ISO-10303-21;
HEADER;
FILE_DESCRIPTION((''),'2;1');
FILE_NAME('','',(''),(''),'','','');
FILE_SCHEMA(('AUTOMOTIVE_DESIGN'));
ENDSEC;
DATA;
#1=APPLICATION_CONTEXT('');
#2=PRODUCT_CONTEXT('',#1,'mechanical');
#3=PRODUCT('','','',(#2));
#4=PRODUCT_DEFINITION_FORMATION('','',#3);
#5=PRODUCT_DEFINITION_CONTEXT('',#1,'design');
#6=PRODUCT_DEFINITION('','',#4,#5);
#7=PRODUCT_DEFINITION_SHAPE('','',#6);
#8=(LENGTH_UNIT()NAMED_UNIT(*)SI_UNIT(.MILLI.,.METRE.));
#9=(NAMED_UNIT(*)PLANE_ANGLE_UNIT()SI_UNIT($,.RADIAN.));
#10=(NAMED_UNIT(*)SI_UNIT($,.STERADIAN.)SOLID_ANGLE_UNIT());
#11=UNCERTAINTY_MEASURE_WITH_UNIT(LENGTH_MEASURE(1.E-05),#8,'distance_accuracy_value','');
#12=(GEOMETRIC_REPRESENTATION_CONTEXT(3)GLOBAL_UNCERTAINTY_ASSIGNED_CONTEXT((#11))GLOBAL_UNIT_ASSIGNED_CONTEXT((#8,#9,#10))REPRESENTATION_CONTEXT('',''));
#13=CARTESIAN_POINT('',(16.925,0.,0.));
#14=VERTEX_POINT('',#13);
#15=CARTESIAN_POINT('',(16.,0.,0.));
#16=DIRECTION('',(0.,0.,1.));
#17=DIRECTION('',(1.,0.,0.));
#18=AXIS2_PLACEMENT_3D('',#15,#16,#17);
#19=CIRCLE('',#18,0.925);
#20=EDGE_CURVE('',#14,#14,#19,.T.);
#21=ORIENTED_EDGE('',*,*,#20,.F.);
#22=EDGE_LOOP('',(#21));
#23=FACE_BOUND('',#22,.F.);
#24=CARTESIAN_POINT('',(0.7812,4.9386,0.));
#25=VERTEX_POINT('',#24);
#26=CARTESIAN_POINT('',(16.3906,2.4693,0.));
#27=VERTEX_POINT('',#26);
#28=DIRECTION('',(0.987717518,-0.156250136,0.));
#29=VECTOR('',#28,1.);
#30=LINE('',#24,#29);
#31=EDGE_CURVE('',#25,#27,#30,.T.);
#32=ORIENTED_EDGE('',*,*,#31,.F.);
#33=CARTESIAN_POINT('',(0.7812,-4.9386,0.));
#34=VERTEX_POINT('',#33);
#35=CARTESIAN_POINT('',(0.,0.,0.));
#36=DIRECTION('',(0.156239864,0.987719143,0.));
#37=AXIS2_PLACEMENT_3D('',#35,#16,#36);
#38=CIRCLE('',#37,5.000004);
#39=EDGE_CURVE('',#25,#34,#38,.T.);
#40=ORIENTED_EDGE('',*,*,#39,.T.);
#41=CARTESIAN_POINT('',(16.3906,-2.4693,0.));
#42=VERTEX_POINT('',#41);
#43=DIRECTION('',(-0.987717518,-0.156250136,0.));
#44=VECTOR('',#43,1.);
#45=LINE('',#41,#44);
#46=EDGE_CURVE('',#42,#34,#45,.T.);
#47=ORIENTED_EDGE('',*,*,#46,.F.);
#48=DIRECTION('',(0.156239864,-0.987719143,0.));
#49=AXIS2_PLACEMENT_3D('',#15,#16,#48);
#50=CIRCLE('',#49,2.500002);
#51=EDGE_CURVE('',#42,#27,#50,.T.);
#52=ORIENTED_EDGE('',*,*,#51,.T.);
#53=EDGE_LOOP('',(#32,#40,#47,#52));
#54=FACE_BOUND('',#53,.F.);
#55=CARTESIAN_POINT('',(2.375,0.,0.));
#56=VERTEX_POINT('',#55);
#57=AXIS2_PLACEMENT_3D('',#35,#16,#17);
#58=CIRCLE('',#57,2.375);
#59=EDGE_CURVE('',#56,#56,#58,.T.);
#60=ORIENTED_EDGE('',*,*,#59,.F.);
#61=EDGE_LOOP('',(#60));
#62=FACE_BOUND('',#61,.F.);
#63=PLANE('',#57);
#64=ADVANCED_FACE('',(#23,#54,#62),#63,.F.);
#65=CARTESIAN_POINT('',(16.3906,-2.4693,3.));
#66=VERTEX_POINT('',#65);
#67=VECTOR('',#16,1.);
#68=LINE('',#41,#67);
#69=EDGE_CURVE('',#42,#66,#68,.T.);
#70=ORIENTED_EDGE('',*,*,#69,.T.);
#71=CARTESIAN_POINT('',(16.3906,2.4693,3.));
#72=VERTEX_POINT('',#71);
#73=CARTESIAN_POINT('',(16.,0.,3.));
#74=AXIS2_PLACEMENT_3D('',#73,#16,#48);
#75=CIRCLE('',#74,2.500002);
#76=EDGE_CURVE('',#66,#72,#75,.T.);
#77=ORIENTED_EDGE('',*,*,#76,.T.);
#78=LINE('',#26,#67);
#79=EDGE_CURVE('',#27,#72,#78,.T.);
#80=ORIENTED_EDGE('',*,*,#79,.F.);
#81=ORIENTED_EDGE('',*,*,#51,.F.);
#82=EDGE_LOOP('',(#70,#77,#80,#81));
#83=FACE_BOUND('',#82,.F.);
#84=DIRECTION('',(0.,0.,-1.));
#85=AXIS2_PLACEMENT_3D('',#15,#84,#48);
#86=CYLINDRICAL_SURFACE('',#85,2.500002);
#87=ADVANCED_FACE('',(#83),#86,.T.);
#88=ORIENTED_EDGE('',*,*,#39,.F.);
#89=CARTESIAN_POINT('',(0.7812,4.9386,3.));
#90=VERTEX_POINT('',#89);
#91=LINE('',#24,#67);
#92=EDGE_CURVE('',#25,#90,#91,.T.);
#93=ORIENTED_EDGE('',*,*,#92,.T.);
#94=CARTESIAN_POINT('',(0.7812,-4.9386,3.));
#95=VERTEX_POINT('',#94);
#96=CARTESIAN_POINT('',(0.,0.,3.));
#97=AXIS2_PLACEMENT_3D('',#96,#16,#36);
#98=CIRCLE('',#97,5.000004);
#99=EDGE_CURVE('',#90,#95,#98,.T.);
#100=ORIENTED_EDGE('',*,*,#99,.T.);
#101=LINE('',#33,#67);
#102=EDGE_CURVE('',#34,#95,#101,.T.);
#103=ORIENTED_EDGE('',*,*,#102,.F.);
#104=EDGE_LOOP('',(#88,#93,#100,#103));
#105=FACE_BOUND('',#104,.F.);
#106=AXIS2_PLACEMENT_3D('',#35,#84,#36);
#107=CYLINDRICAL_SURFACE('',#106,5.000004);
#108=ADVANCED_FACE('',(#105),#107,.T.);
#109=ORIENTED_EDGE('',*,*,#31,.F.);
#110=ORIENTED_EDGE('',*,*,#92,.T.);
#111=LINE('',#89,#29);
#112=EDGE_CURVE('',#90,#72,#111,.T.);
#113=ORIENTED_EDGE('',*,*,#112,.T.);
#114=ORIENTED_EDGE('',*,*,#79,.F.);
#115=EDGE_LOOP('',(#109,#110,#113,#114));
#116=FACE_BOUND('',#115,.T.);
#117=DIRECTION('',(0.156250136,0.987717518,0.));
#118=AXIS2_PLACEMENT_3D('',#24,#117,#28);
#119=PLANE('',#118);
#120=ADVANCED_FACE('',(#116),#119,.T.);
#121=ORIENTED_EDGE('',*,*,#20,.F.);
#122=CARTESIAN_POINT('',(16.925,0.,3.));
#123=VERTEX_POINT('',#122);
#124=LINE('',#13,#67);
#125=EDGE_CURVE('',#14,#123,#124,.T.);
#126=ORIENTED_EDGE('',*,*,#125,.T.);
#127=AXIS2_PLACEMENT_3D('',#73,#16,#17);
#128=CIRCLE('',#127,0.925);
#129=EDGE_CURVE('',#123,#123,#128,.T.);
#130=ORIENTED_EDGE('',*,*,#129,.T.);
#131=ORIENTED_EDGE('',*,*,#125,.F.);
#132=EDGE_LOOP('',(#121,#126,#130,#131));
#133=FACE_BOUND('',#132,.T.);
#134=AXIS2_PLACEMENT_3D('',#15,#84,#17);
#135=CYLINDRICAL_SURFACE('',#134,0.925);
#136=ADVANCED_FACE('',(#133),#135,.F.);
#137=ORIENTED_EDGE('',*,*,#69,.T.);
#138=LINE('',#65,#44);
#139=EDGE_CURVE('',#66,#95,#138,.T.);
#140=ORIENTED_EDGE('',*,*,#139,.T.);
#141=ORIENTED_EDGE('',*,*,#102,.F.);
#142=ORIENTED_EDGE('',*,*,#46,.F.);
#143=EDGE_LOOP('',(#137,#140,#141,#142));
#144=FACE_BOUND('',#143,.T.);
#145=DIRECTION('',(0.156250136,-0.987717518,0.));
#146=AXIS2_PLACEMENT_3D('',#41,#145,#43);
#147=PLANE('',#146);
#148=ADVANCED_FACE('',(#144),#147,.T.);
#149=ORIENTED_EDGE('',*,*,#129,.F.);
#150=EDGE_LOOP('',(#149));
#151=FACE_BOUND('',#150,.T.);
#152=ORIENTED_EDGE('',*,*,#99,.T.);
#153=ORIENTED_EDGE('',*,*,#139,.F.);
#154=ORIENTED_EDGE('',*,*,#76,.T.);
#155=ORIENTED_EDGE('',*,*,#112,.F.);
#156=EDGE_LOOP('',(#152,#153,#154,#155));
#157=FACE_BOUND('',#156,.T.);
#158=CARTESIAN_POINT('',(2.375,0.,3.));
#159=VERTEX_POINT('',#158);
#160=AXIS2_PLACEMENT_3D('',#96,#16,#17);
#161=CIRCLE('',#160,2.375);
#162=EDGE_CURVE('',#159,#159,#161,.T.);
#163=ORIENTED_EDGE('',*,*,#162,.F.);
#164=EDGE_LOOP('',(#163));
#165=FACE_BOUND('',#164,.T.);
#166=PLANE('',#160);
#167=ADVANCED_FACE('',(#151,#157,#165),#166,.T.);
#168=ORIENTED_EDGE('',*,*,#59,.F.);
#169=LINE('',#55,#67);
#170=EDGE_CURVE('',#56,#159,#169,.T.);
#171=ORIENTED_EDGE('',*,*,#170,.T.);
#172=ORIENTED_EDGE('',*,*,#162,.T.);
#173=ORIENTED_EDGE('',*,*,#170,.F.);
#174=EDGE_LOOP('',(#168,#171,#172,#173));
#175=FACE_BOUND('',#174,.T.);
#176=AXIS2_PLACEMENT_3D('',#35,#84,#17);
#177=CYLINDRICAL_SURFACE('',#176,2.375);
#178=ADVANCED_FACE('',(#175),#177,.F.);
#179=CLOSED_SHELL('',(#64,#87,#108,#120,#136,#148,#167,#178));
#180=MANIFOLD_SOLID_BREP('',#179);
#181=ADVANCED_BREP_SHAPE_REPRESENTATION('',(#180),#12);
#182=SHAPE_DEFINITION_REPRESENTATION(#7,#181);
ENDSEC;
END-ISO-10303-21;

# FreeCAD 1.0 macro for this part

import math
import FreeCAD as App
import Part
import Sketcher
Q = App.Units.Quantity

doc = App.newDocument("Part")
body = doc.addObject("PartDesign::Body", "Body")

# Sketch on XY plane
sketch1 = body.newObject("Sketcher::SketchObject", "Sketch")
sketch1.AttachmentSupport = (doc.getObject("XY_Plane"), [""])
sketch1.MapMode = "FlatFace"
sketch1.addGeometry(Part.LineSegment(App.Vector(16.4, 2.5, 0), App.Vector(0.8, 4.9, 0)), False)
sketch1.addGeometry(Part.ArcOfCircle(Part.Circle(App.Vector(0, 0, 0), App.Vector(0, 0, 1), 5), math.radians(81), math.radians(279)), False)
sketch1.addGeometry(Part.LineSegment(App.Vector(0.8, -4.9, 0), App.Vector(16.4, -2.5, 0)), False)
sketch1.addGeometry(Part.ArcOfCircle(Part.Circle(App.Vector(16, 0, 0), App.Vector(0, 0, 1), 2.5), math.radians(-81), math.radians(81)), False)
sketch1.addGeometry(Part.Circle(App.Vector(0, 0, 0), App.Vector(0, 0, 1), 2.4), False)
sketch1.addGeometry(Part.Circle(App.Vector(16, 0, 0), App.Vector(0, 0, 1), 0.9), False)
sketch1.addConstraint(Sketcher.Constraint("Tangent", 0, 2, 1, 1))
sketch1.addConstraint(Sketcher.Constraint("Tangent", 1, 2, 2, 1))
sketch1.addConstraint(Sketcher.Constraint("Tangent", 2, 2, 3, 1))
sketch1.addConstraint(Sketcher.Constraint("Tangent", 3, 2, 0, 1))
sketch1.addConstraint(Sketcher.Constraint("Coincident", 1, 3, -1, 1))
sketch1.addConstraint(Sketcher.Constraint("Coincident", 4, 3, -1, 1))
sketch1.addConstraint(Sketcher.Constraint("Coincident", 5, 3, 3, 3))
sketch1.addConstraint(Sketcher.Constraint("PointOnObject", 3, 3, -1))
sketch1.addConstraint(Sketcher.Constraint("Radius", 1, Q("5 mm")))
sketch1.addConstraint(Sketcher.Constraint("Radius", 3, Q("2.5 mm")))
sketch1.addConstraint(Sketcher.Constraint("Diameter", 4, Q("4.75 mm")))
sketch1.addConstraint(Sketcher.Constraint("Diameter", 5, Q("1.85 mm")))
sketch1.addConstraint(Sketcher.Constraint("DistanceX", -1, 1, 3, 3, Q("16 mm")))
pad1 = body.newObject("PartDesign::Pad", "Pad")
pad1.Profile = sketch1
pad1.Length = 3

doc.recompute()
